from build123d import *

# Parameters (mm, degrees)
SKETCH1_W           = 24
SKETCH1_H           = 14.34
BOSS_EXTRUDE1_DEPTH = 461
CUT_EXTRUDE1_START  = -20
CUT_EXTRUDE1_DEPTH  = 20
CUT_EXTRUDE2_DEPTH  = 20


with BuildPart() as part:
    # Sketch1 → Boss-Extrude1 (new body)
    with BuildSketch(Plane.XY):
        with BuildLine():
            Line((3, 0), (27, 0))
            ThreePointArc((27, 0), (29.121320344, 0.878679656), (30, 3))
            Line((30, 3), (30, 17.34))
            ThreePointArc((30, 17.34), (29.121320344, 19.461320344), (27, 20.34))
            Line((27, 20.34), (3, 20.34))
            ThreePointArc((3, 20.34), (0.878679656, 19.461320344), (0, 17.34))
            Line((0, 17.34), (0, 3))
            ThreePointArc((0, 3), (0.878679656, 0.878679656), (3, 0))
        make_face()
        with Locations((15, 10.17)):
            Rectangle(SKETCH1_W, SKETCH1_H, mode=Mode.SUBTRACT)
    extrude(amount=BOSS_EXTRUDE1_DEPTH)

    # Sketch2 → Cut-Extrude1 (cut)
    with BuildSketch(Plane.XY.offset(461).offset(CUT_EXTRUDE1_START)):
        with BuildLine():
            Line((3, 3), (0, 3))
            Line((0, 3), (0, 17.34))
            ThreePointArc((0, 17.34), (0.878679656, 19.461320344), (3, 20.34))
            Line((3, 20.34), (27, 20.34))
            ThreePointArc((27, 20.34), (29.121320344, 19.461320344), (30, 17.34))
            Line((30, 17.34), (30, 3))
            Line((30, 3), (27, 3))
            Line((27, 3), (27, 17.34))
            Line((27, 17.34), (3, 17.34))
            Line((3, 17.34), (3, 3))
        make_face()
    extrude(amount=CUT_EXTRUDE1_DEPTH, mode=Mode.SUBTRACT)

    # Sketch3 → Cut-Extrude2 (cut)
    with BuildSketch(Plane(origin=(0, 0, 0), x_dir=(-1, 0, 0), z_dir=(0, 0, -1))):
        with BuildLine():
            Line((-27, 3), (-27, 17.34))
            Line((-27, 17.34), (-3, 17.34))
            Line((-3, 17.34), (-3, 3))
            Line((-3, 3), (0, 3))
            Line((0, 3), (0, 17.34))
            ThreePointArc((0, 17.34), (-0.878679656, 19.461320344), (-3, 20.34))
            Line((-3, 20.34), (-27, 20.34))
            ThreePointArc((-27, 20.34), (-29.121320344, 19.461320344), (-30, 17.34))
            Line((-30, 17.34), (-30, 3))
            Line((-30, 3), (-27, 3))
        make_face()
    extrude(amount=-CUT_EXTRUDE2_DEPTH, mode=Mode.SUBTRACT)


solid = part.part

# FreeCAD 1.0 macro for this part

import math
import FreeCAD as App
import Part
import Sketcher


def add_polygon(sketch, points):
    """Adds a closed chain of lines whose ends are joined by coincident constraints."""
    first, n = sketch.GeometryCount, len(points)
    for a, b in zip(points, points[1:] + points[:1]):
        sketch.addGeometry(Part.LineSegment(App.Vector(*a, 0), App.Vector(*b, 0)), False)
    for i in range(n):
        sketch.addConstraint(Sketcher.Constraint("Coincident", first + i, 2, first + (i + 1) % n, 1))

doc = App.newDocument("Part")
body = doc.addObject("PartDesign::Body", "Body")

sketch1 = doc.addObject("Sketcher::SketchObject", "Sketch")
body.addObject(sketch1)
sketch1.AttachmentSupport = (doc.XY_Plane, [""])
sketch1.MapMode = "FlatFace"
sketch1.addGeometry(Part.LineSegment(App.Vector(3, 0, 0), App.Vector(27, 0, 0)), False)
sketch1.addGeometry(Part.ArcOfCircle(Part.Circle(App.Vector(27, 3, 0), App.Vector(0, 0, 1), 3), math.radians(-90), math.radians(0)), False)
sketch1.addGeometry(Part.LineSegment(App.Vector(30, 3, 0), App.Vector(30, 17.3, 0)), False)
sketch1.addGeometry(Part.ArcOfCircle(Part.Circle(App.Vector(27, 17.3, 0), App.Vector(0, 0, 1), 3), math.radians(0), math.radians(90)), False)
sketch1.addGeometry(Part.LineSegment(App.Vector(27, 20.3, 0), App.Vector(3, 20.3, 0)), False)
sketch1.addGeometry(Part.ArcOfCircle(Part.Circle(App.Vector(3, 17.3, 0), App.Vector(0, 0, 1), 3), math.radians(90), math.radians(180)), False)
sketch1.addGeometry(Part.LineSegment(App.Vector(0, 17.3, 0), App.Vector(0, 3, 0)), False)
sketch1.addGeometry(Part.ArcOfCircle(Part.Circle(App.Vector(3, 3, 0), App.Vector(0, 0, 1), 3), math.radians(180), math.radians(270)), False)
add_polygon(sketch1, [(27, 3), (3, 3), (3, 17.3), (27, 17.3)])
sketch1.addConstraint([
    Sketcher.Constraint("Tangent", 0, 2, 1, 1),
    Sketcher.Constraint("Tangent", 1, 2, 2, 1),
    Sketcher.Constraint("Tangent", 2, 2, 3, 1),
    Sketcher.Constraint("Tangent", 3, 2, 4, 1),
    Sketcher.Constraint("Tangent", 4, 2, 5, 1),
    Sketcher.Constraint("Tangent", 5, 2, 6, 1),
    Sketcher.Constraint("Tangent", 6, 2, 7, 1),
    Sketcher.Constraint("Tangent", 7, 2, 0, 1),
    Sketcher.Constraint("Horizontal", 0),
    Sketcher.Constraint("Vertical", 2),
    Sketcher.Constraint("Horizontal", 4),
    Sketcher.Constraint("Vertical", 6),
    Sketcher.Constraint("Horizontal", 8),
    Sketcher.Constraint("Vertical", 9),
    Sketcher.Constraint("Horizontal", 10),
    Sketcher.Constraint("Vertical", 11),
    Sketcher.Constraint("Coincident", 8, 2, 7, 3),
    Sketcher.Constraint("Coincident", 9, 2, 5, 3),
    Sketcher.Constraint("Coincident", 10, 2, 3, 3),
    Sketcher.Constraint("Equal", 1, 3),
    Sketcher.Constraint("PointOnObject", 0, 2, -1),
    Sketcher.Constraint("PointOnObject", 5, 2, -2),
    Sketcher.Constraint("Radius", 1, 3.0),
    Sketcher.Constraint("DistanceX", 0, 1, 0, 2, 24.0),
    Sketcher.Constraint("DistanceY", 2, 1, 2, 2, 14.34),
])
pad1 = doc.addObject("PartDesign::Pad", "Pad")
body.addObject(pad1)
pad1.Profile = sketch1
pad1.Length = 461

sketch2 = doc.addObject("Sketcher::SketchObject", "Sketch001")
body.addObject(sketch2)
sketch2.AttachmentSupport = (doc.XY_Plane, [""])
sketch2.MapMode = "FlatFace"
sketch2.AttachmentOffset = App.Placement(App.Vector(0, 0, 441), App.Rotation())
sketch2.addGeometry([
    Part.LineSegment(App.Vector(0, 3, 0), App.Vector(3, 3, 0)),
    Part.LineSegment(App.Vector(3, 3, 0), App.Vector(3, 17.3, 0)),
    Part.LineSegment(App.Vector(3, 17.3, 0), App.Vector(27, 17.3, 0)),
    Part.LineSegment(App.Vector(27, 17.3, 0), App.Vector(27, 3, 0)),
    Part.LineSegment(App.Vector(27, 3, 0), App.Vector(30, 3, 0)),
    Part.LineSegment(App.Vector(30, 3, 0), App.Vector(30, 17.3, 0)),
    Part.ArcOfCircle(Part.Circle(App.Vector(27, 17.3, 0), App.Vector(0, 0, 1), 3), math.radians(0), math.radians(90)),
    Part.LineSegment(App.Vector(27, 20.3, 0), App.Vector(3, 20.3, 0)),
    Part.ArcOfCircle(Part.Circle(App.Vector(3, 17.3, 0), App.Vector(0, 0, 1), 3), math.radians(90), math.radians(180)),
    Part.LineSegment(App.Vector(0, 17.3, 0), App.Vector(0, 3, 0)),
], False)
sketch2.addConstraint([
    Sketcher.Constraint("Coincident", 0, 2, 1, 1),
    Sketcher.Constraint("Coincident", 1, 2, 2, 1),
    Sketcher.Constraint("Coincident", 2, 2, 3, 1),
    Sketcher.Constraint("Coincident", 3, 2, 4, 1),
    Sketcher.Constraint("Coincident", 4, 2, 5, 1),
    Sketcher.Constraint("Tangent", 5, 2, 6, 1),
    Sketcher.Constraint("Tangent", 6, 2, 7, 1),
    Sketcher.Constraint("Tangent", 7, 2, 8, 1),
    Sketcher.Constraint("Tangent", 8, 2, 9, 1),
    Sketcher.Constraint("Coincident", 9, 2, 0, 1),
    Sketcher.Constraint("Horizontal", 0),
    Sketcher.Constraint("Vertical", 1),
    Sketcher.Constraint("Horizontal", 2),
    Sketcher.Constraint("Vertical", 3),
    Sketcher.Constraint("Horizontal", 4),
    Sketcher.Constraint("Vertical", 5),
    Sketcher.Constraint("Horizontal", 7),
    Sketcher.Constraint("Vertical", 9),
    Sketcher.Constraint("Coincident", 1, 2, 8, 3),
    Sketcher.Constraint("Coincident", 2, 2, 6, 3),
    Sketcher.Constraint("PointOnObject", 8, 2, -2),
    Sketcher.Constraint("Horizontal", 0, 2, 3, 2),
    Sketcher.Constraint("Radius", 6, 3.0),
    Sketcher.Constraint("DistanceX", 2, 1, 2, 2, 24.0),
    Sketcher.Constraint("DistanceY", -1, 1, 0, 2, 3.0),
    Sketcher.Constraint("DistanceY", 1, 1, 1, 2, 14.34),
])
pocket1 = doc.addObject("PartDesign::Pocket", "Pocket")
body.addObject(pocket1)
pocket1.Profile = sketch2
pocket1.Length = 20
pocket1.Reversed = True

sketch3 = doc.addObject("Sketcher::SketchObject", "Sketch002")
body.addObject(sketch3)
sketch3.AttachmentSupport = (doc.XY_Plane, [""])
sketch3.MapMode = "FlatFace"
sketch3.addGeometry([
    Part.LineSegment(App.Vector(27, 3, 0), App.Vector(27, 17.3, 0)),
    Part.LineSegment(App.Vector(27, 17.3, 0), App.Vector(3, 17.3, 0)),
    Part.LineSegment(App.Vector(3, 17.3, 0), App.Vector(3, 3, 0)),
    Part.LineSegment(App.Vector(3, 3, 0), App.Vector(0, 3, 0)),
    Part.LineSegment(App.Vector(0, 3, 0), App.Vector(0, 17.3, 0)),
    Part.ArcOfCircle(Part.Circle(App.Vector(3, 17.3, 0), App.Vector(0, 0, 1), 3), math.radians(90), math.radians(180)),
    Part.LineSegment(App.Vector(3, 20.3, 0), App.Vector(27, 20.3, 0)),
    Part.ArcOfCircle(Part.Circle(App.Vector(27, 17.3, 0), App.Vector(0, 0, 1), 3), math.radians(0), math.radians(90)),
    Part.LineSegment(App.Vector(30, 17.3, 0), App.Vector(30, 3, 0)),
    Part.LineSegment(App.Vector(30, 3, 0), App.Vector(27, 3, 0)),
], False)
sketch3.addConstraint([
    Sketcher.Constraint("Coincident", 0, 2, 1, 1),
    Sketcher.Constraint("Coincident", 1, 2, 2, 1),
    Sketcher.Constraint("Coincident", 2, 2, 3, 1),
    Sketcher.Constraint("Coincident", 3, 2, 4, 1),
    Sketcher.Constraint("Tangent", 4, 2, 5, 2),
    Sketcher.Constraint("Tangent", 5, 1, 6, 1),
    Sketcher.Constraint("Tangent", 6, 2, 7, 2),
    Sketcher.Constraint("Tangent", 7, 1, 8, 1),
    Sketcher.Constraint("Coincident", 8, 2, 9, 1),
    Sketcher.Constraint("Coincident", 9, 2, 0, 1),
    Sketcher.Constraint("Vertical", 0),
    Sketcher.Constraint("Horizontal", 1),
    Sketcher.Constraint("Vertical", 2),
    Sketcher.Constraint("Horizontal", 3),
    Sketcher.Constraint("Vertical", 4),
    Sketcher.Constraint("Horizontal", 6),
    Sketcher.Constraint("Vertical", 8),
    Sketcher.Constraint("Horizontal", 9),
    Sketcher.Constraint("Coincident", 0, 2, 7, 3),
    Sketcher.Constraint("Coincident", 1, 2, 5, 3),
    Sketcher.Constraint("PointOnObject", 3, 2, -2),
    Sketcher.Constraint("Horizontal", 3, 2, 8, 2),
    Sketcher.Constraint("Radius", 5, 3.0),
    Sketcher.Constraint("DistanceX", 1, 2, 1, 1, 24.0),
    Sketcher.Constraint("DistanceY", -1, 1, 2, 2, 3.0),
    Sketcher.Constraint("DistanceY", 0, 1, 0, 2, 14.34),
])
pocket2 = doc.addObject("PartDesign::Pocket", "Pocket001")
body.addObject(pocket2)
pocket2.Profile = sketch3
pocket2.Length = 20
pocket2.Reversed = True

doc.recompute()
